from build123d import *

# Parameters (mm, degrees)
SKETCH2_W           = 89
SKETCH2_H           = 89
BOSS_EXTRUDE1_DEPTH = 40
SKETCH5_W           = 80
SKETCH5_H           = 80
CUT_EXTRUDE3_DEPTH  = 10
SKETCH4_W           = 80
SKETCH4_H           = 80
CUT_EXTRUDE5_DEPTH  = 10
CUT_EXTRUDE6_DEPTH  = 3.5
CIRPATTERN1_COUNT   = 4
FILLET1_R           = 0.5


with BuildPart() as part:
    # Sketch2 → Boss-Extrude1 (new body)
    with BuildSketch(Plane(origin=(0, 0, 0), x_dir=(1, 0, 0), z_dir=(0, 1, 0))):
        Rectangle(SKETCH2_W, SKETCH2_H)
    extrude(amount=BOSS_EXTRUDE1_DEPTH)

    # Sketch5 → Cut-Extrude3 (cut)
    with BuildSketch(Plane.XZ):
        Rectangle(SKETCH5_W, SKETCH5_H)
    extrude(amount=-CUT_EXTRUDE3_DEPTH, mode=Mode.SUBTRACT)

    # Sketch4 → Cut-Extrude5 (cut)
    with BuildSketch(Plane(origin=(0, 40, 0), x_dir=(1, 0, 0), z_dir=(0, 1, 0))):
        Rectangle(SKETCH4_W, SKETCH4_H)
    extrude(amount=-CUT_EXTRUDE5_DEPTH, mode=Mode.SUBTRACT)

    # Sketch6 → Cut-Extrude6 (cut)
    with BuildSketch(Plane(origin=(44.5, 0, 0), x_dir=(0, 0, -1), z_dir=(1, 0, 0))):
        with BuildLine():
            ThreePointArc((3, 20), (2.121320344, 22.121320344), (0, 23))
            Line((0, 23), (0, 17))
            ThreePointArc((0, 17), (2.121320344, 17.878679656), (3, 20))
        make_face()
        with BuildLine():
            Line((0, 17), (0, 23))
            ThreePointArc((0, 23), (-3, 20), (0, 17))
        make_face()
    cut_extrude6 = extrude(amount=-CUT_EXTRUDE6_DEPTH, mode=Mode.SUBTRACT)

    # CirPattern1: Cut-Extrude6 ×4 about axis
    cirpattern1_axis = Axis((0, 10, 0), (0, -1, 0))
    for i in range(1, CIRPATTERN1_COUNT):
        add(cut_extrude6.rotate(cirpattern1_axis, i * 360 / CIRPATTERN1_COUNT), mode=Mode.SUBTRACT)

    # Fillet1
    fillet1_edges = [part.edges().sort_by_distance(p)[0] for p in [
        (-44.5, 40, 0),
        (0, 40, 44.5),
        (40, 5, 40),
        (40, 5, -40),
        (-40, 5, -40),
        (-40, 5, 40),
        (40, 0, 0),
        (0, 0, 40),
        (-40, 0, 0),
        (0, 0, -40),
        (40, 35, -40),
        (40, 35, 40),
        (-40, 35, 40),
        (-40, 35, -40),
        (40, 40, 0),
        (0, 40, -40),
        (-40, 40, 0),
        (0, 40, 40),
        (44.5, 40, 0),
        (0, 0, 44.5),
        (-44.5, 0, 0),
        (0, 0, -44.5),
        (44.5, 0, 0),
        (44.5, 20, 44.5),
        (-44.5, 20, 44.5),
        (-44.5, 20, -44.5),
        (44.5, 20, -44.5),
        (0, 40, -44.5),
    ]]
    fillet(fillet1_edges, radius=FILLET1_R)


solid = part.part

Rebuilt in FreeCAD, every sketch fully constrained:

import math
import FreeCAD as App
import Part
import Sketcher


def edges_at(feature, points):
    """Names of the edges that pass closest to the given points."""
    edges = feature.Shape.Edges
    near = lambda p: min(range(len(edges)), key=lambda i: edges[i].distToShape(Part.Vertex(*p))[0])
    return sorted({f"Edge{near(p) + 1}" for p in points})

doc = App.newDocument("Part")
body = doc.addObject("PartDesign::Body", "Body")

# Sketch on XZ plane
sketch1 = doc.addObject("Sketcher::SketchObject", "Sketch")
body.addObject(sketch1)
sketch1.AttachmentSupport = (doc.XZ_Plane, [""])
sketch1.MapMode = "FlatFace"
sketch1.addGeometry([
    Part.LineSegment(App.Vector(-44.5, -44.5, 0), App.Vector(-44.5, 44.5, 0)),
    Part.LineSegment(App.Vector(-44.5, 44.5, 0), App.Vector(44.5, 44.5, 0)),
    Part.LineSegment(App.Vector(44.5, 44.5, 0), App.Vector(44.5, -44.5, 0)),
    Part.LineSegment(App.Vector(44.5, -44.5, 0), App.Vector(-44.5, -44.5, 0)),
], False)
sketch1.addConstraint([
    Sketcher.Constraint("Coincident", 0, 2, 1, 1),
    Sketcher.Constraint("Coincident", 1, 2, 2, 1),
    Sketcher.Constraint("Coincident", 2, 2, 3, 1),
    Sketcher.Constraint("Coincident", 3, 2, 0, 1),
    Sketcher.Constraint("Vertical", 0),
    Sketcher.Constraint("Horizontal", 1),
    Sketcher.Constraint("Vertical", 2),
    Sketcher.Constraint("Horizontal", 3),
    Sketcher.Constraint("Symmetric", 0, 2, 2, 2, -1, 1),
    Sketcher.Constraint("Equal", 3, 0),
    Sketcher.Constraint("DistanceX", 1, 1, 1, 2, 89.0),
])
pad1 = doc.addObject("PartDesign::Pad", "Pad")
body.addObject(pad1)
pad1.Profile = sketch1
pad1.Length = 40
pad1.Reversed = True

# Sketch on XZ plane
sketch2 = doc.addObject("Sketcher::SketchObject", "Sketch001")
body.addObject(sketch2)
sketch2.AttachmentSupport = (doc.XZ_Plane, [""])
sketch2.MapMode = "FlatFace"
sketch2.addGeometry([
    Part.LineSegment(App.Vector(-40, 40, 0), App.Vector(-40, -40, 0)),
    Part.LineSegment(App.Vector(-40, -40, 0), App.Vector(40, -40, 0)),
    Part.LineSegment(App.Vector(40, -40, 0), App.Vector(40, 40, 0)),
    Part.LineSegment(App.Vector(40, 40, 0), App.Vector(-40, 40, 0)),
], False)
sketch2.addConstraint([
    Sketcher.Constraint("Coincident", 0, 2, 1, 1),
    Sketcher.Constraint("Coincident", 1, 2, 2, 1),
    Sketcher.Constraint("Coincident", 2, 2, 3, 1),
    Sketcher.Constraint("Coincident", 3, 2, 0, 1),
    Sketcher.Constraint("Vertical", 0),
    Sketcher.Constraint("Horizontal", 1),
    Sketcher.Constraint("Vertical", 2),
    Sketcher.Constraint("Horizontal", 3),
    Sketcher.Constraint("Symmetric", 0, 2, 2, 2, -1, 1),
    Sketcher.Constraint("Equal", 3, 0),
    Sketcher.Constraint("DistanceX", 1, 1, 1, 2, 80.0),
])
pocket1 = doc.addObject("PartDesign::Pocket", "Pocket")
body.addObject(pocket1)
pocket1.Profile = sketch2
pocket1.Length = 10

# Sketch on XZ plane
sketch3 = doc.addObject("Sketcher::SketchObject", "Sketch002")
body.addObject(sketch3)
sketch3.AttachmentSupport = (doc.XZ_Plane, [""])
sketch3.MapMode = "FlatFace"
sketch3.AttachmentOffset = App.Placement(App.Vector(0, 0, -40), App.Rotation())
sketch3.addGeometry([
    Part.LineSegment(App.Vector(-40, -40, 0), App.Vector(-40, 40, 0)),
    Part.LineSegment(App.Vector(-40, 40, 0), App.Vector(40, 40, 0)),
    Part.LineSegment(App.Vector(40, 40, 0), App.Vector(40, -40, 0)),
    Part.LineSegment(App.Vector(40, -40, 0), App.Vector(-40, -40, 0)),
], False)
sketch3.addConstraint([
    Sketcher.Constraint("Coincident", 0, 2, 1, 1),
    Sketcher.Constraint("Coincident", 1, 2, 2, 1),
    Sketcher.Constraint("Coincident", 2, 2, 3, 1),
    Sketcher.Constraint("Coincident", 3, 2, 0, 1),
    Sketcher.Constraint("Vertical", 0),
    Sketcher.Constraint("Horizontal", 1),
    Sketcher.Constraint("Vertical", 2),
    Sketcher.Constraint("Horizontal", 3),
    Sketcher.Constraint("Symmetric", 0, 2, 2, 2, -1, 1),
    Sketcher.Constraint("Equal", 3, 0),
    Sketcher.Constraint("DistanceX", 1, 1, 1, 2, 80.0),
])
pocket2 = doc.addObject("PartDesign::Pocket", "Pocket001")
body.addObject(pocket2)
pocket2.Profile = sketch3
pocket2.Length = 10
pocket2.Reversed = True

# Sketch on YZ plane
sketch4 = doc.addObject("Sketcher::SketchObject", "Sketch003")
body.addObject(sketch4)
sketch4.AttachmentSupport = (doc.YZ_Plane, [""])
sketch4.MapMode = "FlatFace"
sketch4.AttachmentOffset = App.Placement(App.Vector(0, 0, 44.5), App.Rotation())
sketch4.addGeometry([
    Part.ArcOfCircle(Part.Circle(App.Vector(20, 0, 0), App.Vector(0, 0, 1), 3), math.radians(-90), math.radians(0)),
    Part.ArcOfCircle(Part.Circle(App.Vector(20, 0, 0), App.Vector(0, 0, 1), 3), math.radians(0), math.radians(180)),
    Part.ArcOfCircle(Part.Circle(App.Vector(20, 0, 0), App.Vector(0, 0, 1), 3), math.radians(180), math.radians(270)),
], False)
sketch4.addConstraint([
    Sketcher.Constraint("Tangent", 0, 2, 1, 1),
    Sketcher.Constraint("Tangent", 1, 2, 2, 1),
    Sketcher.Constraint("Tangent", 2, 2, 0, 1),
    Sketcher.Constraint("PointOnObject", 0, 3, -1),
    Sketcher.Constraint("PointOnObject", 0, 2, -1),
    Sketcher.Constraint("PointOnObject", 1, 2, -1),
    Sketcher.Constraint("Vertical", 1, 3, 2, 2),
    Sketcher.Constraint("Radius", 0, 3.0),
    Sketcher.Constraint("DistanceX", -1, 1, 0, 3, 20.0),
])
pocket3 = doc.addObject("PartDesign::Pocket", "Pocket002")
body.addObject(pocket3)
pocket3.Profile = sketch4
pocket3.Length = 3.5
doc.recompute()

polarpattern = doc.addObject("PartDesign::PolarPattern", "PolarPattern")
body.addObject(polarpattern)
polarpattern.Originals = [pocket3]
polarpattern.Axis = (doc.Y_Axis, [""])
polarpattern.Angle = 360
polarpattern.Occurrences = 4
body.Tip = polarpattern
doc.recompute()

fillet = doc.addObject("PartDesign::Fillet", "Fillet")
body.addObject(fillet)
fillet.Base = (polarpattern, edges_at(polarpattern, [
    (-44.5, 40, 0),
    (0, 40, 44.5),
    (40, 5, 40),
    (40, 5, -40),
    (-40, 5, -40),
    (-40, 5, 40),
    (40, 0, 0),
    (0, 0, 40),
    (-40, 0, 0),
    (0, 0, -40),
    (40, 35, -40),
    (40, 35, 40),
    (-40, 35, 40),
    (-40, 35, -40),
    (40, 40, 0),
    (0, 40, -40),
    (-40, 40, 0),
    (0, 40, 40),
    (44.5, 40, 0),
    (0, 0, 44.5),
    (-44.5, 0, 0),
    (0, 0, -44.5),
    (44.5, 0, 0),
    (44.5, 20, 44.5),
    (-44.5, 20, 44.5),
    (-44.5, 20, -44.5),
    (44.5, 20, -44.5),
    (0, 40, -44.5),
]))
fillet.Radius = 0.5

doc.recompute()
